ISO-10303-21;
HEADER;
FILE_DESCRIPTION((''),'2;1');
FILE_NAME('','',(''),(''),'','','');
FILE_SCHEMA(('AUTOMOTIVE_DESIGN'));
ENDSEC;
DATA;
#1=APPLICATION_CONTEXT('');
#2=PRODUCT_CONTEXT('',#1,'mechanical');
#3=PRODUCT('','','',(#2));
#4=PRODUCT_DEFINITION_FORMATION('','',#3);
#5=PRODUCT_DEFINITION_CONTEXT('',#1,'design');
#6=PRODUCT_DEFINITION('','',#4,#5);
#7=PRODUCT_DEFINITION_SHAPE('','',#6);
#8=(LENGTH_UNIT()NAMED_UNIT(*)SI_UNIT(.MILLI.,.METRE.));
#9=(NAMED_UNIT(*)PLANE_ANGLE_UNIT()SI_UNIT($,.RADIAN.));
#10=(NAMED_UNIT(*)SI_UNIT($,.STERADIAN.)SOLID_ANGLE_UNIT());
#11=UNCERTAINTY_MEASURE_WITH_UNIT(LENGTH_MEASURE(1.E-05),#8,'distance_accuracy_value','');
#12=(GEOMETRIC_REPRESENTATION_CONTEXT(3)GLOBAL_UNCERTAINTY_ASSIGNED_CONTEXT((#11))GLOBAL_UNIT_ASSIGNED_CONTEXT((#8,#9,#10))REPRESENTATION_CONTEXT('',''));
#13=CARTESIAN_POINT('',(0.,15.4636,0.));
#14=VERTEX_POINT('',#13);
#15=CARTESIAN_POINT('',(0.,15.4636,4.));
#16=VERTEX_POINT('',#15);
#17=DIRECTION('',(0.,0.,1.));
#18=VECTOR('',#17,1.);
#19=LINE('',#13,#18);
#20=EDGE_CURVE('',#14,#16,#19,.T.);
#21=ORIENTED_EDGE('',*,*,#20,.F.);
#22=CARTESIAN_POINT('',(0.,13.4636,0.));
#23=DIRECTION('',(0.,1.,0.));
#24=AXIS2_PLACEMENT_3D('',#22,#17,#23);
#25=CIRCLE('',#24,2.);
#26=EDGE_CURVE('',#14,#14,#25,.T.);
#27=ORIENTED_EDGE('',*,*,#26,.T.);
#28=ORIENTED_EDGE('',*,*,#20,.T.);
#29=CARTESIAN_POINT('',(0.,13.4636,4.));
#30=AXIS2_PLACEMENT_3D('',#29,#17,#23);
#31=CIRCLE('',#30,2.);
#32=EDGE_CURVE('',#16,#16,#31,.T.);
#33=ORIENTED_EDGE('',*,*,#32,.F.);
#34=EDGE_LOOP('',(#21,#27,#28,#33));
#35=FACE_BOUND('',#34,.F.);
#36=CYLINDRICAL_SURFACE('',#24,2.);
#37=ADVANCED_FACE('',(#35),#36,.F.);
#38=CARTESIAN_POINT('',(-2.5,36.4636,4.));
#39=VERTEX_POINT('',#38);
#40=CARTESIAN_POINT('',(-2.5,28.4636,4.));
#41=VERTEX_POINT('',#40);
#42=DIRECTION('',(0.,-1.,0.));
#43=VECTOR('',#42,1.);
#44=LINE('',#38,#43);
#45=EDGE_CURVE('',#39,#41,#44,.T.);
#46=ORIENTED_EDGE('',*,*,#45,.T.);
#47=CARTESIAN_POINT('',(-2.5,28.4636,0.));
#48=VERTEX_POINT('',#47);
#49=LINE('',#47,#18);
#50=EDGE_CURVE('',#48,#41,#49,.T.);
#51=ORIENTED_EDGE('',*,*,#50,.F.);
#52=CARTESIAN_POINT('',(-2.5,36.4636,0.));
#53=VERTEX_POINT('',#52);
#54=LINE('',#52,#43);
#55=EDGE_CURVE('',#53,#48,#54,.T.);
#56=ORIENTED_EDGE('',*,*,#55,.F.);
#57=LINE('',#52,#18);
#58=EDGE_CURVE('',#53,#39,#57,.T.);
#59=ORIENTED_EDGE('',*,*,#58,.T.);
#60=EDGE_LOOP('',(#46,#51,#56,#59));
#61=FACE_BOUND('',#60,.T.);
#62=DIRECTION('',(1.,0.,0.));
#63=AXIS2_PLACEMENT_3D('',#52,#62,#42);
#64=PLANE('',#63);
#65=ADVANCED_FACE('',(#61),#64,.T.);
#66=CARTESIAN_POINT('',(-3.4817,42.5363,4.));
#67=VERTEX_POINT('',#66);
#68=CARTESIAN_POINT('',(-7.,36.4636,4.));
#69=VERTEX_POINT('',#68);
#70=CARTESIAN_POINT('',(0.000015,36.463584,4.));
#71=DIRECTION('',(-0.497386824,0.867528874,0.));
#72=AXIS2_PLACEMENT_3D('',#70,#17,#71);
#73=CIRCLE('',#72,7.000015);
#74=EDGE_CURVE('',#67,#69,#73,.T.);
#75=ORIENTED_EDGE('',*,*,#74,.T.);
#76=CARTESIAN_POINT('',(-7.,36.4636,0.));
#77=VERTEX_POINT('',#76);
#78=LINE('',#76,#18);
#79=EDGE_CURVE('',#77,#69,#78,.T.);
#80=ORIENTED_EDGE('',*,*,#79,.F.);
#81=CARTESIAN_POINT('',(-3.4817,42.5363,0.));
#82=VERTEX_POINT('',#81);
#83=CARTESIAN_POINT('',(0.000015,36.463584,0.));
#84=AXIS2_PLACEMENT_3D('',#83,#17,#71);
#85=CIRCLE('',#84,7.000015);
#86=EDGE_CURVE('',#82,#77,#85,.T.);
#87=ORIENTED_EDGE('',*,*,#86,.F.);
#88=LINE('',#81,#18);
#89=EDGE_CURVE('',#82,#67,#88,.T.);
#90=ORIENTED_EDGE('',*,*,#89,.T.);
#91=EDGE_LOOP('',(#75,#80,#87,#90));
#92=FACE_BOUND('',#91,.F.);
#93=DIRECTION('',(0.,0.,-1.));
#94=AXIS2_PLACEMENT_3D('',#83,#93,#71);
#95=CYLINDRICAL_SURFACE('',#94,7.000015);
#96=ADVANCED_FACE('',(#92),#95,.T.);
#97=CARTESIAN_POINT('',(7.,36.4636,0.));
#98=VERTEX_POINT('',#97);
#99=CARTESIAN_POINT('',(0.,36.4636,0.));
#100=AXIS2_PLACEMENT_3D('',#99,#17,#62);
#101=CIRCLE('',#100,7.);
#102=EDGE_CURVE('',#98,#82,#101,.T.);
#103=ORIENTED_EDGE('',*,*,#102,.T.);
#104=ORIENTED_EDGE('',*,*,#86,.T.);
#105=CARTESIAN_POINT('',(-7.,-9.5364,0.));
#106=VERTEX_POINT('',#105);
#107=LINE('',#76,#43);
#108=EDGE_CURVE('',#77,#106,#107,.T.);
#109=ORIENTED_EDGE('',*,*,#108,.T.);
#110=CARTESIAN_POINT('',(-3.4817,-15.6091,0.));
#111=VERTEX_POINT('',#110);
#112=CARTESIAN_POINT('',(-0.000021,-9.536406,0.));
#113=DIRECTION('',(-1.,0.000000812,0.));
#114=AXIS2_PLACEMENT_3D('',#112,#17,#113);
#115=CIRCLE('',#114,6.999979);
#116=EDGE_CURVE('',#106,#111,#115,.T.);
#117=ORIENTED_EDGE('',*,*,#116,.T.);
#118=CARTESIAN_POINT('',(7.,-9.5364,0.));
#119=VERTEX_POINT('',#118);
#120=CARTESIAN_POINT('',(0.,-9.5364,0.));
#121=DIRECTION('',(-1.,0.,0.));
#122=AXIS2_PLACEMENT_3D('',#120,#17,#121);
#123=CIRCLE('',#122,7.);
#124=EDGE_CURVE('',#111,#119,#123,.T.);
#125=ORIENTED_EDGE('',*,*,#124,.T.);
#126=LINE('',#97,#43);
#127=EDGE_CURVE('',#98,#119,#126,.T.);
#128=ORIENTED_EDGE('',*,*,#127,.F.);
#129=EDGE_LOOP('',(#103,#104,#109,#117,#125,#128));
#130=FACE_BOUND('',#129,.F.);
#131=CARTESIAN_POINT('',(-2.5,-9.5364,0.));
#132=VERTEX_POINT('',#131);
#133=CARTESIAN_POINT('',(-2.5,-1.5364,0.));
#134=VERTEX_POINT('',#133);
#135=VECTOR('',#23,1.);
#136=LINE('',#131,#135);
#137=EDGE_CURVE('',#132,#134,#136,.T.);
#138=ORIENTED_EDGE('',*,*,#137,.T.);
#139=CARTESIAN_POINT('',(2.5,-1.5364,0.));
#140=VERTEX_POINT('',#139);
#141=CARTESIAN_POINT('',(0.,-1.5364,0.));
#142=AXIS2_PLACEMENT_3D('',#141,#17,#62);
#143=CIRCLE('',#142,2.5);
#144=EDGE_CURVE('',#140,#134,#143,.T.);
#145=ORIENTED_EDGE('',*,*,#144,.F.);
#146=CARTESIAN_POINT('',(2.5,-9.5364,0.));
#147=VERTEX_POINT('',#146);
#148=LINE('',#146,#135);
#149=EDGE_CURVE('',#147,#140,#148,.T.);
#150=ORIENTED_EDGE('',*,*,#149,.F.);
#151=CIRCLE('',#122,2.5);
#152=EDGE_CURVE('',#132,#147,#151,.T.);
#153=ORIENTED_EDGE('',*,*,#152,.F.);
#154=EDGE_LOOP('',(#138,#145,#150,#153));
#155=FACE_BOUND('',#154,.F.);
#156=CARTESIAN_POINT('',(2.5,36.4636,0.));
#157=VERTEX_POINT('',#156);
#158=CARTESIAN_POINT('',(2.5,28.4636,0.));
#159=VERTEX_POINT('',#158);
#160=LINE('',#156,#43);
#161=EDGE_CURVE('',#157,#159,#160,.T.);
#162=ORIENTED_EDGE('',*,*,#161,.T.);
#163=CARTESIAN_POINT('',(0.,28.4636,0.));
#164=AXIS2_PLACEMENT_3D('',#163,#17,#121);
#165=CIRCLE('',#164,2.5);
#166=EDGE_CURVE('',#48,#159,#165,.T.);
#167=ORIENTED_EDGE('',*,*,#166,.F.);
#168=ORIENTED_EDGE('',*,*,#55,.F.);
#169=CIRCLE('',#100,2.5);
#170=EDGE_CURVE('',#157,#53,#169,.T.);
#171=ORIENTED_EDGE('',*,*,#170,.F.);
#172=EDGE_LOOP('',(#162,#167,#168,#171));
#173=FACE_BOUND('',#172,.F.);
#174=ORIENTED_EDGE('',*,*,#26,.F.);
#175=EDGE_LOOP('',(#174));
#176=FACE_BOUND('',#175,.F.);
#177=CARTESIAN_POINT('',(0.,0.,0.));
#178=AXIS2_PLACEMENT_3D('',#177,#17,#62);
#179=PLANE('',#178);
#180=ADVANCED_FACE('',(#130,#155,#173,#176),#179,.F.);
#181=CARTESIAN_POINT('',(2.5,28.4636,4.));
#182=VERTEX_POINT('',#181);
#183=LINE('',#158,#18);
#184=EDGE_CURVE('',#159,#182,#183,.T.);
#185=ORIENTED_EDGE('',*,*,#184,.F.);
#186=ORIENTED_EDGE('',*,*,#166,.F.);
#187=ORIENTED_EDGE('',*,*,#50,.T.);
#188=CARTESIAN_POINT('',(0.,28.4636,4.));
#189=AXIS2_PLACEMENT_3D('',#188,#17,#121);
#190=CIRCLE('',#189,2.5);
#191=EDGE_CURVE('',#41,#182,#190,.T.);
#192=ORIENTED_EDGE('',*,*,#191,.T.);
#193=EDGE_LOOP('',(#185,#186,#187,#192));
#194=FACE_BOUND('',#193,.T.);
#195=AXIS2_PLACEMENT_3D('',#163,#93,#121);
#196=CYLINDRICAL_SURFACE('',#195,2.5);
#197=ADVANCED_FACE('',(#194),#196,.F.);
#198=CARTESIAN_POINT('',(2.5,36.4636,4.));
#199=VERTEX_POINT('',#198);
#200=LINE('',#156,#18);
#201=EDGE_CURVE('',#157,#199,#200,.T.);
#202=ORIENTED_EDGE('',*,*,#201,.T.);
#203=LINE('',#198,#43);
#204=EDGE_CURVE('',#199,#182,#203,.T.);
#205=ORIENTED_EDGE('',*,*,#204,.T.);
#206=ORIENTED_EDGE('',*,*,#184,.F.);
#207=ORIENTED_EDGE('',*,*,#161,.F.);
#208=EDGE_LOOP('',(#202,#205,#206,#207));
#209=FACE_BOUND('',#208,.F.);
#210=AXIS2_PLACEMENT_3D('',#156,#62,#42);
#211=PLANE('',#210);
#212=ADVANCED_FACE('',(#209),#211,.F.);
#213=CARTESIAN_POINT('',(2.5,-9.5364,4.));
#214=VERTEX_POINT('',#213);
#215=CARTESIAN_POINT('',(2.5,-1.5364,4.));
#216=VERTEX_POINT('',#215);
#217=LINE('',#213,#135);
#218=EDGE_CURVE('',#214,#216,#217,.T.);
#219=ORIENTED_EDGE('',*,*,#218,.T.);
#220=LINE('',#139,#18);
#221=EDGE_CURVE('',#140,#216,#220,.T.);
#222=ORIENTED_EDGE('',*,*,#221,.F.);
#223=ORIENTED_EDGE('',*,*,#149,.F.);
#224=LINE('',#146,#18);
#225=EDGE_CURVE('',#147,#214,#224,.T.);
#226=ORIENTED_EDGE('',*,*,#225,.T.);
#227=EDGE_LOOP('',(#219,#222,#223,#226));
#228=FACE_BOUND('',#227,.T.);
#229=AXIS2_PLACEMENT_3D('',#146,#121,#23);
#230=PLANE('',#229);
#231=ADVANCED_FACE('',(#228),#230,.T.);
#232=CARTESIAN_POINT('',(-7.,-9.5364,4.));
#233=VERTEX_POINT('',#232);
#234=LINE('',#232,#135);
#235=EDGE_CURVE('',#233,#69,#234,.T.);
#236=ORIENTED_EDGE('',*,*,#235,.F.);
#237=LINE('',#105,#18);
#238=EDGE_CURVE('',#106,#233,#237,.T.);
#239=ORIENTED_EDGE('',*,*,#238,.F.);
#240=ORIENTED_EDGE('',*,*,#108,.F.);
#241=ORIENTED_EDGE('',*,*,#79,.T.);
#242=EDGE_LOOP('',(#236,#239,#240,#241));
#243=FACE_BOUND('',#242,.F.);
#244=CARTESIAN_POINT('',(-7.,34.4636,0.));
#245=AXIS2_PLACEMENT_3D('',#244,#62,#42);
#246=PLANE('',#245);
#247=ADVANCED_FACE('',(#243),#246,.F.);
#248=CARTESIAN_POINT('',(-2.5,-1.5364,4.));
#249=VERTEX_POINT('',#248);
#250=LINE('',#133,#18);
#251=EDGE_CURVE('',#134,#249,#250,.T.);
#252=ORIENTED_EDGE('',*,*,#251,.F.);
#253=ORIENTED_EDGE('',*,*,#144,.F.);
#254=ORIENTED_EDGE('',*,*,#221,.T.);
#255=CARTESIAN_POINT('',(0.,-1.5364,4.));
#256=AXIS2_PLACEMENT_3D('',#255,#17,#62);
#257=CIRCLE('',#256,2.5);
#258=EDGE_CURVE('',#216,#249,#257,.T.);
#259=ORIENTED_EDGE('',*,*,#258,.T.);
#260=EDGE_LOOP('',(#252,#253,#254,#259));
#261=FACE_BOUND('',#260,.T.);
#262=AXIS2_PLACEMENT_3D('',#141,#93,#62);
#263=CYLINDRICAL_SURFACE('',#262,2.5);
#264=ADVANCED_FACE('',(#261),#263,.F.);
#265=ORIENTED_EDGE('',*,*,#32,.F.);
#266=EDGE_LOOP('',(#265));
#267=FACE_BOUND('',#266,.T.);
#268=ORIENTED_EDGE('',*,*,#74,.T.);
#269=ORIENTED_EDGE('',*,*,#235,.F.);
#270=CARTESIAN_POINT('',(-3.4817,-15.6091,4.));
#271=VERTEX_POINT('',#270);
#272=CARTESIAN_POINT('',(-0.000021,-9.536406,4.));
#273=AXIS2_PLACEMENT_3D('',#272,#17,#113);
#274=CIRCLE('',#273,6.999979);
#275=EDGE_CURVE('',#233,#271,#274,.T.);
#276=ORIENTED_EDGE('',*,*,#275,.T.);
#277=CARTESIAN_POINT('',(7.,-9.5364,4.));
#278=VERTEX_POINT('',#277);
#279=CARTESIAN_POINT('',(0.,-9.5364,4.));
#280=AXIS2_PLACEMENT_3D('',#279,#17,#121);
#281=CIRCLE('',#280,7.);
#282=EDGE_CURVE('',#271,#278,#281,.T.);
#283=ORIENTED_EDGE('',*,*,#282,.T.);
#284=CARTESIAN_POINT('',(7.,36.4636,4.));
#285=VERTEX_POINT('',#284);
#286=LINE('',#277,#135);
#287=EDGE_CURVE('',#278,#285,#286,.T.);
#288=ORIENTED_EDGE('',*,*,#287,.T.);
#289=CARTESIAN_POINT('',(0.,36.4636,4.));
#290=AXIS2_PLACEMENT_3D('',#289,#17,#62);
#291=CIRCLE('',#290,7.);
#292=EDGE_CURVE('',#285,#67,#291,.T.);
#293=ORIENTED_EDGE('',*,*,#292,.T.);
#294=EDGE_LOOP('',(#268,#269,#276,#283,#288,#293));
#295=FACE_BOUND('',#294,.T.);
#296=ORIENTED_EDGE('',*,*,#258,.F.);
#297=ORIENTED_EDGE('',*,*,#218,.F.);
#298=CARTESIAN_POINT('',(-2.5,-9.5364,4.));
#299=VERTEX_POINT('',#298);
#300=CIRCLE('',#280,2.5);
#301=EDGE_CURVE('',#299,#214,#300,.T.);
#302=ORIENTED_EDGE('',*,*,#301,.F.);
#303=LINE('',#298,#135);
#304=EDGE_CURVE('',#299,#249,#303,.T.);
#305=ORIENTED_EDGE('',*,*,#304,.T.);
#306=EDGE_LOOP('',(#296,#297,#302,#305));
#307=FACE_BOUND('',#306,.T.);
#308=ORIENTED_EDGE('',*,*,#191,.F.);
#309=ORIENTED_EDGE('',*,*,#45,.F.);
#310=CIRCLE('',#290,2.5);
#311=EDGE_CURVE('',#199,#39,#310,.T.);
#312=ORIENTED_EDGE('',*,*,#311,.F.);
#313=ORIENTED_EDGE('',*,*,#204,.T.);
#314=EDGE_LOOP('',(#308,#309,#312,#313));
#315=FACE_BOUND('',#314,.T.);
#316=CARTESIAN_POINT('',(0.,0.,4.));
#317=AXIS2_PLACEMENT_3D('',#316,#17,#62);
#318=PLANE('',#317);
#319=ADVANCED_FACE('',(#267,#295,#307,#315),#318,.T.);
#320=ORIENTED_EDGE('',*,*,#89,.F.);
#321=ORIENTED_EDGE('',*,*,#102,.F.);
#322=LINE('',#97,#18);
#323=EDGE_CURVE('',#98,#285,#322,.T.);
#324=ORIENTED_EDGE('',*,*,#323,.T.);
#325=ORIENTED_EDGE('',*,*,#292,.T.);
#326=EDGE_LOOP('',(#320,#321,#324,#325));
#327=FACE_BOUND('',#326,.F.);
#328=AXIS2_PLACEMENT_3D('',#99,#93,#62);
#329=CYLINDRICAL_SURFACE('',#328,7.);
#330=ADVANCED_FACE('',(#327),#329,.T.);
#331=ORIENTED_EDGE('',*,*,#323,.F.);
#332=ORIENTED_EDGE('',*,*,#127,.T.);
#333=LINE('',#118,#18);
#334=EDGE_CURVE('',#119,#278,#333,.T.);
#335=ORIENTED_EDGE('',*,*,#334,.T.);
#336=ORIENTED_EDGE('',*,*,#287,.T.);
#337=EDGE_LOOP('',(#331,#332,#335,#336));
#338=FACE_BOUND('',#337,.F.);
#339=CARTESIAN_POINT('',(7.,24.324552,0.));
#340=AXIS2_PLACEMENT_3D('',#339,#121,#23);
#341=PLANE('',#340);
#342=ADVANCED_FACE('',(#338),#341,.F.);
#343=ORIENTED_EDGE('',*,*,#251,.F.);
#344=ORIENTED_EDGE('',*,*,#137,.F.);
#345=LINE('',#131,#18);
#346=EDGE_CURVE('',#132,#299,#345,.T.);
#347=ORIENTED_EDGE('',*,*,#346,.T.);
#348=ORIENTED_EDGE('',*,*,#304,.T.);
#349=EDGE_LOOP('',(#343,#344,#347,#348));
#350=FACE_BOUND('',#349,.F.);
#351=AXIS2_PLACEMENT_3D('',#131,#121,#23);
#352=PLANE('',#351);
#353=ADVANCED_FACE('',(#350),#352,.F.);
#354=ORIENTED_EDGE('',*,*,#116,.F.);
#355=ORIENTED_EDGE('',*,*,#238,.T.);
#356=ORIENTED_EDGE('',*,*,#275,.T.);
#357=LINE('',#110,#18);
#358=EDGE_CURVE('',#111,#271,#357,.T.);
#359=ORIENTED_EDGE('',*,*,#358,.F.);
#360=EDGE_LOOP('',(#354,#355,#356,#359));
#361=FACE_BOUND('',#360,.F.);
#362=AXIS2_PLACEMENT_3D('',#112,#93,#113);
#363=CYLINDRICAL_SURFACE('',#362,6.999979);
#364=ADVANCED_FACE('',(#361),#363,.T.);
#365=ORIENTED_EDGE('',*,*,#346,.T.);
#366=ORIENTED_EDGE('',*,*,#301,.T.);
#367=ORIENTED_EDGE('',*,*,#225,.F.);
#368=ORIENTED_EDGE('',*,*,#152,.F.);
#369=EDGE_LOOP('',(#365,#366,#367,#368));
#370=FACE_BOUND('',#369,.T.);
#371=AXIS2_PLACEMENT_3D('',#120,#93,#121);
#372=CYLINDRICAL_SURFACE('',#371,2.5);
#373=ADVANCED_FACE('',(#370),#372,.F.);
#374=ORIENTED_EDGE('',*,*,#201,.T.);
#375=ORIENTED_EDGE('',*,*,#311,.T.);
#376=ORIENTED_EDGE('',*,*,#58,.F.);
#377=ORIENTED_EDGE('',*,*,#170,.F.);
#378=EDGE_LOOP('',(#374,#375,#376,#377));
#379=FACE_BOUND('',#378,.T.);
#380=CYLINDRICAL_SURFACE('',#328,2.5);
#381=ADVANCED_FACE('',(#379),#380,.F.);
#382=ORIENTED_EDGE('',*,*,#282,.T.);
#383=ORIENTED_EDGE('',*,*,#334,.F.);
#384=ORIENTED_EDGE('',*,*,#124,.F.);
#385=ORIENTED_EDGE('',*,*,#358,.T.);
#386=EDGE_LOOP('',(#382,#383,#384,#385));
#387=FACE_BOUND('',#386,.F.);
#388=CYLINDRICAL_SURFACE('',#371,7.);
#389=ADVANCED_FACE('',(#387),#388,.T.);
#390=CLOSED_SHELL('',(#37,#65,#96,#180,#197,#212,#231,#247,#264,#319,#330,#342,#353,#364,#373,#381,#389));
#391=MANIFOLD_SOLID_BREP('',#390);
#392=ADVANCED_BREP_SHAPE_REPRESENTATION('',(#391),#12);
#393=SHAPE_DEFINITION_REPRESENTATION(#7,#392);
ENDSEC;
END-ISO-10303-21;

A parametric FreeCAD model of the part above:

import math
import FreeCAD as App
import Part
import Sketcher
from FreeCAD import Vector
Q = App.Units.Quantity

doc = App.newDocument("Part")
body = doc.addObject("PartDesign::Body", "Body")

# Sketch on XY plane
sketch1 = doc.addObject("Sketcher::SketchObject", "Sketch")
body.addObject(sketch1)
sketch1.AttachmentSupport = (doc.XY_Plane, [""])
sketch1.MapMode = "FlatFace"
sketch1.addGeometry([
    Part.ArcOfCircle(Part.Circle(Vector(0, -9.5, 0), Vector(0, 0, 1), 7), math.radians(180), math.radians(240)),  # 0
    Part.ArcOfCircle(Part.Circle(Vector(0, -9.5, 0), Vector(0, 0, 1), 7), math.radians(-120), math.radians(0)),  # 1
    Part.LineSegment(Vector(7, -9.5, 0), Vector(7, 36.5, 0)),  # 2
    Part.ArcOfCircle(Part.Circle(Vector(0, 36.5, 0), Vector(0, 0, 1), 7), math.radians(0), math.radians(120)),  # 3
    Part.ArcOfCircle(Part.Circle(Vector(0, 36.5, 0), Vector(0, 0, 1), 7), math.radians(120), math.radians(180)),  # 4
    Part.LineSegment(Vector(-7, 36.5, 0), Vector(-7, -9.5, 0)),  # 5
    Part.ArcOfCircle(Part.Circle(Vector(0, 36.5, 0), Vector(0, 0, 1), 2.5), math.radians(0), math.radians(180)),  # 6
    Part.LineSegment(Vector(2.5, 36.5, 0), Vector(2.5, 28.5, 0)),  # 7
    Part.ArcOfCircle(Part.Circle(Vector(0, 28.5, 0), Vector(0, 0, 1), 2.5), math.radians(180), math.radians(360)),  # 8
    Part.LineSegment(Vector(-2.5, 28.5, 0), Vector(-2.5, 36.5, 0)),  # 9
    Part.LineSegment(Vector(-2.5, -9.5, 0), Vector(-2.5, -1.5, 0)),  # 10
    Part.ArcOfCircle(Part.Circle(Vector(0, -1.5, 0), Vector(0, 0, 1), 2.5), math.radians(0), math.radians(180)),  # 11
    Part.LineSegment(Vector(2.5, -1.5, 0), Vector(2.5, -9.5, 0)),  # 12
    Part.ArcOfCircle(Part.Circle(Vector(0, -9.5, 0), Vector(0, 0, 1), 2.5), math.radians(180), math.radians(360)),  # 13
], False)
sketch1.addConstraint([
    Sketcher.Constraint("Tangent", 0, 2, 1, 1),
    Sketcher.Constraint("Tangent", 1, 2, 2, 1),
    Sketcher.Constraint("Tangent", 2, 2, 3, 1),
    Sketcher.Constraint("Tangent", 3, 2, 4, 1),
    Sketcher.Constraint("Tangent", 4, 2, 5, 1),
    Sketcher.Constraint("Tangent", 5, 2, 0, 1),
    Sketcher.Constraint("Tangent", 6, 1, 7, 1),
    Sketcher.Constraint("Tangent", 7, 2, 8, 2),
    Sketcher.Constraint("Tangent", 8, 1, 9, 1),
    Sketcher.Constraint("Tangent", 9, 2, 6, 2),
    Sketcher.Constraint("Tangent", 10, 2, 11, 2),
    Sketcher.Constraint("Tangent", 11, 1, 12, 1),
    Sketcher.Constraint("Tangent", 12, 2, 13, 2),
    Sketcher.Constraint("Tangent", 13, 1, 10, 1),
    Sketcher.Constraint("Vertical", 2),
    Sketcher.Constraint("Vertical", 5),
    Sketcher.Constraint("Vertical", 7),
    Sketcher.Constraint("Vertical", 9),
    Sketcher.Constraint("Vertical", 10),
    Sketcher.Constraint("Vertical", 12),
    Sketcher.Constraint("Coincident", 6, 3, 3, 3),
    Sketcher.Constraint("Coincident", 13, 3, 0, 3),
    Sketcher.Constraint("Equal", 0, 1),
    Sketcher.Constraint("Equal", 1, 3),
    Sketcher.Constraint("Equal", 8, 11),
    Sketcher.Constraint("PointOnObject", 0, 3, -2),
    Sketcher.Constraint("Vertical", 0, 2, 3, 2),
    Sketcher.Constraint("Equal", 9, 10),
    Sketcher.Constraint("Radius", 0, Q("7 mm")),
    Sketcher.Constraint("Radius", 6, Q("2.5 mm")),
    Sketcher.Constraint("DistanceY", 2, 1, 2, 2, Q("46 mm")),
    Sketcher.Constraint("DistanceY", 7, 2, 7, 1, Q("8 mm")),
    Sketcher.Constraint("DistanceY", 0, 2, -1, 1, Q("15.609 mm")),
    Sketcher.Constraint("DistanceY", 0, 3, -1, 1, Q("9.5364 mm")),
])
pad1 = doc.addObject("PartDesign::Pad", "Pad")
body.addObject(pad1)
pad1.Profile = sketch1
pad1.Length = 4

# Sketch on XY plane
sketch2 = doc.addObject("Sketcher::SketchObject", "Sketch001")
body.addObject(sketch2)
sketch2.AttachmentSupport = (doc.XY_Plane, [""])
sketch2.MapMode = "FlatFace"
sketch2.addGeometry(Part.Circle(Vector(0, 13.5, 0), Vector(0, 0, 1), 2), False)
sketch2.addConstraint([
    Sketcher.Constraint("PointOnObject", 0, 3, -2),
    Sketcher.Constraint("Diameter", 0, Q("4 mm")),
    Sketcher.Constraint("DistanceY", -1, 1, 0, 3, Q("13.4636 mm")),
])
doc.recompute()
hole = doc.addObject("PartDesign::Hole", "Hole")
body.addObject(hole)
hole.Profile = sketch2
hole.ThreadType = "None"
hole.Diameter = 4
hole.DepthType = "ThroughAll"
hole.Reversed = True

doc.recompute()
